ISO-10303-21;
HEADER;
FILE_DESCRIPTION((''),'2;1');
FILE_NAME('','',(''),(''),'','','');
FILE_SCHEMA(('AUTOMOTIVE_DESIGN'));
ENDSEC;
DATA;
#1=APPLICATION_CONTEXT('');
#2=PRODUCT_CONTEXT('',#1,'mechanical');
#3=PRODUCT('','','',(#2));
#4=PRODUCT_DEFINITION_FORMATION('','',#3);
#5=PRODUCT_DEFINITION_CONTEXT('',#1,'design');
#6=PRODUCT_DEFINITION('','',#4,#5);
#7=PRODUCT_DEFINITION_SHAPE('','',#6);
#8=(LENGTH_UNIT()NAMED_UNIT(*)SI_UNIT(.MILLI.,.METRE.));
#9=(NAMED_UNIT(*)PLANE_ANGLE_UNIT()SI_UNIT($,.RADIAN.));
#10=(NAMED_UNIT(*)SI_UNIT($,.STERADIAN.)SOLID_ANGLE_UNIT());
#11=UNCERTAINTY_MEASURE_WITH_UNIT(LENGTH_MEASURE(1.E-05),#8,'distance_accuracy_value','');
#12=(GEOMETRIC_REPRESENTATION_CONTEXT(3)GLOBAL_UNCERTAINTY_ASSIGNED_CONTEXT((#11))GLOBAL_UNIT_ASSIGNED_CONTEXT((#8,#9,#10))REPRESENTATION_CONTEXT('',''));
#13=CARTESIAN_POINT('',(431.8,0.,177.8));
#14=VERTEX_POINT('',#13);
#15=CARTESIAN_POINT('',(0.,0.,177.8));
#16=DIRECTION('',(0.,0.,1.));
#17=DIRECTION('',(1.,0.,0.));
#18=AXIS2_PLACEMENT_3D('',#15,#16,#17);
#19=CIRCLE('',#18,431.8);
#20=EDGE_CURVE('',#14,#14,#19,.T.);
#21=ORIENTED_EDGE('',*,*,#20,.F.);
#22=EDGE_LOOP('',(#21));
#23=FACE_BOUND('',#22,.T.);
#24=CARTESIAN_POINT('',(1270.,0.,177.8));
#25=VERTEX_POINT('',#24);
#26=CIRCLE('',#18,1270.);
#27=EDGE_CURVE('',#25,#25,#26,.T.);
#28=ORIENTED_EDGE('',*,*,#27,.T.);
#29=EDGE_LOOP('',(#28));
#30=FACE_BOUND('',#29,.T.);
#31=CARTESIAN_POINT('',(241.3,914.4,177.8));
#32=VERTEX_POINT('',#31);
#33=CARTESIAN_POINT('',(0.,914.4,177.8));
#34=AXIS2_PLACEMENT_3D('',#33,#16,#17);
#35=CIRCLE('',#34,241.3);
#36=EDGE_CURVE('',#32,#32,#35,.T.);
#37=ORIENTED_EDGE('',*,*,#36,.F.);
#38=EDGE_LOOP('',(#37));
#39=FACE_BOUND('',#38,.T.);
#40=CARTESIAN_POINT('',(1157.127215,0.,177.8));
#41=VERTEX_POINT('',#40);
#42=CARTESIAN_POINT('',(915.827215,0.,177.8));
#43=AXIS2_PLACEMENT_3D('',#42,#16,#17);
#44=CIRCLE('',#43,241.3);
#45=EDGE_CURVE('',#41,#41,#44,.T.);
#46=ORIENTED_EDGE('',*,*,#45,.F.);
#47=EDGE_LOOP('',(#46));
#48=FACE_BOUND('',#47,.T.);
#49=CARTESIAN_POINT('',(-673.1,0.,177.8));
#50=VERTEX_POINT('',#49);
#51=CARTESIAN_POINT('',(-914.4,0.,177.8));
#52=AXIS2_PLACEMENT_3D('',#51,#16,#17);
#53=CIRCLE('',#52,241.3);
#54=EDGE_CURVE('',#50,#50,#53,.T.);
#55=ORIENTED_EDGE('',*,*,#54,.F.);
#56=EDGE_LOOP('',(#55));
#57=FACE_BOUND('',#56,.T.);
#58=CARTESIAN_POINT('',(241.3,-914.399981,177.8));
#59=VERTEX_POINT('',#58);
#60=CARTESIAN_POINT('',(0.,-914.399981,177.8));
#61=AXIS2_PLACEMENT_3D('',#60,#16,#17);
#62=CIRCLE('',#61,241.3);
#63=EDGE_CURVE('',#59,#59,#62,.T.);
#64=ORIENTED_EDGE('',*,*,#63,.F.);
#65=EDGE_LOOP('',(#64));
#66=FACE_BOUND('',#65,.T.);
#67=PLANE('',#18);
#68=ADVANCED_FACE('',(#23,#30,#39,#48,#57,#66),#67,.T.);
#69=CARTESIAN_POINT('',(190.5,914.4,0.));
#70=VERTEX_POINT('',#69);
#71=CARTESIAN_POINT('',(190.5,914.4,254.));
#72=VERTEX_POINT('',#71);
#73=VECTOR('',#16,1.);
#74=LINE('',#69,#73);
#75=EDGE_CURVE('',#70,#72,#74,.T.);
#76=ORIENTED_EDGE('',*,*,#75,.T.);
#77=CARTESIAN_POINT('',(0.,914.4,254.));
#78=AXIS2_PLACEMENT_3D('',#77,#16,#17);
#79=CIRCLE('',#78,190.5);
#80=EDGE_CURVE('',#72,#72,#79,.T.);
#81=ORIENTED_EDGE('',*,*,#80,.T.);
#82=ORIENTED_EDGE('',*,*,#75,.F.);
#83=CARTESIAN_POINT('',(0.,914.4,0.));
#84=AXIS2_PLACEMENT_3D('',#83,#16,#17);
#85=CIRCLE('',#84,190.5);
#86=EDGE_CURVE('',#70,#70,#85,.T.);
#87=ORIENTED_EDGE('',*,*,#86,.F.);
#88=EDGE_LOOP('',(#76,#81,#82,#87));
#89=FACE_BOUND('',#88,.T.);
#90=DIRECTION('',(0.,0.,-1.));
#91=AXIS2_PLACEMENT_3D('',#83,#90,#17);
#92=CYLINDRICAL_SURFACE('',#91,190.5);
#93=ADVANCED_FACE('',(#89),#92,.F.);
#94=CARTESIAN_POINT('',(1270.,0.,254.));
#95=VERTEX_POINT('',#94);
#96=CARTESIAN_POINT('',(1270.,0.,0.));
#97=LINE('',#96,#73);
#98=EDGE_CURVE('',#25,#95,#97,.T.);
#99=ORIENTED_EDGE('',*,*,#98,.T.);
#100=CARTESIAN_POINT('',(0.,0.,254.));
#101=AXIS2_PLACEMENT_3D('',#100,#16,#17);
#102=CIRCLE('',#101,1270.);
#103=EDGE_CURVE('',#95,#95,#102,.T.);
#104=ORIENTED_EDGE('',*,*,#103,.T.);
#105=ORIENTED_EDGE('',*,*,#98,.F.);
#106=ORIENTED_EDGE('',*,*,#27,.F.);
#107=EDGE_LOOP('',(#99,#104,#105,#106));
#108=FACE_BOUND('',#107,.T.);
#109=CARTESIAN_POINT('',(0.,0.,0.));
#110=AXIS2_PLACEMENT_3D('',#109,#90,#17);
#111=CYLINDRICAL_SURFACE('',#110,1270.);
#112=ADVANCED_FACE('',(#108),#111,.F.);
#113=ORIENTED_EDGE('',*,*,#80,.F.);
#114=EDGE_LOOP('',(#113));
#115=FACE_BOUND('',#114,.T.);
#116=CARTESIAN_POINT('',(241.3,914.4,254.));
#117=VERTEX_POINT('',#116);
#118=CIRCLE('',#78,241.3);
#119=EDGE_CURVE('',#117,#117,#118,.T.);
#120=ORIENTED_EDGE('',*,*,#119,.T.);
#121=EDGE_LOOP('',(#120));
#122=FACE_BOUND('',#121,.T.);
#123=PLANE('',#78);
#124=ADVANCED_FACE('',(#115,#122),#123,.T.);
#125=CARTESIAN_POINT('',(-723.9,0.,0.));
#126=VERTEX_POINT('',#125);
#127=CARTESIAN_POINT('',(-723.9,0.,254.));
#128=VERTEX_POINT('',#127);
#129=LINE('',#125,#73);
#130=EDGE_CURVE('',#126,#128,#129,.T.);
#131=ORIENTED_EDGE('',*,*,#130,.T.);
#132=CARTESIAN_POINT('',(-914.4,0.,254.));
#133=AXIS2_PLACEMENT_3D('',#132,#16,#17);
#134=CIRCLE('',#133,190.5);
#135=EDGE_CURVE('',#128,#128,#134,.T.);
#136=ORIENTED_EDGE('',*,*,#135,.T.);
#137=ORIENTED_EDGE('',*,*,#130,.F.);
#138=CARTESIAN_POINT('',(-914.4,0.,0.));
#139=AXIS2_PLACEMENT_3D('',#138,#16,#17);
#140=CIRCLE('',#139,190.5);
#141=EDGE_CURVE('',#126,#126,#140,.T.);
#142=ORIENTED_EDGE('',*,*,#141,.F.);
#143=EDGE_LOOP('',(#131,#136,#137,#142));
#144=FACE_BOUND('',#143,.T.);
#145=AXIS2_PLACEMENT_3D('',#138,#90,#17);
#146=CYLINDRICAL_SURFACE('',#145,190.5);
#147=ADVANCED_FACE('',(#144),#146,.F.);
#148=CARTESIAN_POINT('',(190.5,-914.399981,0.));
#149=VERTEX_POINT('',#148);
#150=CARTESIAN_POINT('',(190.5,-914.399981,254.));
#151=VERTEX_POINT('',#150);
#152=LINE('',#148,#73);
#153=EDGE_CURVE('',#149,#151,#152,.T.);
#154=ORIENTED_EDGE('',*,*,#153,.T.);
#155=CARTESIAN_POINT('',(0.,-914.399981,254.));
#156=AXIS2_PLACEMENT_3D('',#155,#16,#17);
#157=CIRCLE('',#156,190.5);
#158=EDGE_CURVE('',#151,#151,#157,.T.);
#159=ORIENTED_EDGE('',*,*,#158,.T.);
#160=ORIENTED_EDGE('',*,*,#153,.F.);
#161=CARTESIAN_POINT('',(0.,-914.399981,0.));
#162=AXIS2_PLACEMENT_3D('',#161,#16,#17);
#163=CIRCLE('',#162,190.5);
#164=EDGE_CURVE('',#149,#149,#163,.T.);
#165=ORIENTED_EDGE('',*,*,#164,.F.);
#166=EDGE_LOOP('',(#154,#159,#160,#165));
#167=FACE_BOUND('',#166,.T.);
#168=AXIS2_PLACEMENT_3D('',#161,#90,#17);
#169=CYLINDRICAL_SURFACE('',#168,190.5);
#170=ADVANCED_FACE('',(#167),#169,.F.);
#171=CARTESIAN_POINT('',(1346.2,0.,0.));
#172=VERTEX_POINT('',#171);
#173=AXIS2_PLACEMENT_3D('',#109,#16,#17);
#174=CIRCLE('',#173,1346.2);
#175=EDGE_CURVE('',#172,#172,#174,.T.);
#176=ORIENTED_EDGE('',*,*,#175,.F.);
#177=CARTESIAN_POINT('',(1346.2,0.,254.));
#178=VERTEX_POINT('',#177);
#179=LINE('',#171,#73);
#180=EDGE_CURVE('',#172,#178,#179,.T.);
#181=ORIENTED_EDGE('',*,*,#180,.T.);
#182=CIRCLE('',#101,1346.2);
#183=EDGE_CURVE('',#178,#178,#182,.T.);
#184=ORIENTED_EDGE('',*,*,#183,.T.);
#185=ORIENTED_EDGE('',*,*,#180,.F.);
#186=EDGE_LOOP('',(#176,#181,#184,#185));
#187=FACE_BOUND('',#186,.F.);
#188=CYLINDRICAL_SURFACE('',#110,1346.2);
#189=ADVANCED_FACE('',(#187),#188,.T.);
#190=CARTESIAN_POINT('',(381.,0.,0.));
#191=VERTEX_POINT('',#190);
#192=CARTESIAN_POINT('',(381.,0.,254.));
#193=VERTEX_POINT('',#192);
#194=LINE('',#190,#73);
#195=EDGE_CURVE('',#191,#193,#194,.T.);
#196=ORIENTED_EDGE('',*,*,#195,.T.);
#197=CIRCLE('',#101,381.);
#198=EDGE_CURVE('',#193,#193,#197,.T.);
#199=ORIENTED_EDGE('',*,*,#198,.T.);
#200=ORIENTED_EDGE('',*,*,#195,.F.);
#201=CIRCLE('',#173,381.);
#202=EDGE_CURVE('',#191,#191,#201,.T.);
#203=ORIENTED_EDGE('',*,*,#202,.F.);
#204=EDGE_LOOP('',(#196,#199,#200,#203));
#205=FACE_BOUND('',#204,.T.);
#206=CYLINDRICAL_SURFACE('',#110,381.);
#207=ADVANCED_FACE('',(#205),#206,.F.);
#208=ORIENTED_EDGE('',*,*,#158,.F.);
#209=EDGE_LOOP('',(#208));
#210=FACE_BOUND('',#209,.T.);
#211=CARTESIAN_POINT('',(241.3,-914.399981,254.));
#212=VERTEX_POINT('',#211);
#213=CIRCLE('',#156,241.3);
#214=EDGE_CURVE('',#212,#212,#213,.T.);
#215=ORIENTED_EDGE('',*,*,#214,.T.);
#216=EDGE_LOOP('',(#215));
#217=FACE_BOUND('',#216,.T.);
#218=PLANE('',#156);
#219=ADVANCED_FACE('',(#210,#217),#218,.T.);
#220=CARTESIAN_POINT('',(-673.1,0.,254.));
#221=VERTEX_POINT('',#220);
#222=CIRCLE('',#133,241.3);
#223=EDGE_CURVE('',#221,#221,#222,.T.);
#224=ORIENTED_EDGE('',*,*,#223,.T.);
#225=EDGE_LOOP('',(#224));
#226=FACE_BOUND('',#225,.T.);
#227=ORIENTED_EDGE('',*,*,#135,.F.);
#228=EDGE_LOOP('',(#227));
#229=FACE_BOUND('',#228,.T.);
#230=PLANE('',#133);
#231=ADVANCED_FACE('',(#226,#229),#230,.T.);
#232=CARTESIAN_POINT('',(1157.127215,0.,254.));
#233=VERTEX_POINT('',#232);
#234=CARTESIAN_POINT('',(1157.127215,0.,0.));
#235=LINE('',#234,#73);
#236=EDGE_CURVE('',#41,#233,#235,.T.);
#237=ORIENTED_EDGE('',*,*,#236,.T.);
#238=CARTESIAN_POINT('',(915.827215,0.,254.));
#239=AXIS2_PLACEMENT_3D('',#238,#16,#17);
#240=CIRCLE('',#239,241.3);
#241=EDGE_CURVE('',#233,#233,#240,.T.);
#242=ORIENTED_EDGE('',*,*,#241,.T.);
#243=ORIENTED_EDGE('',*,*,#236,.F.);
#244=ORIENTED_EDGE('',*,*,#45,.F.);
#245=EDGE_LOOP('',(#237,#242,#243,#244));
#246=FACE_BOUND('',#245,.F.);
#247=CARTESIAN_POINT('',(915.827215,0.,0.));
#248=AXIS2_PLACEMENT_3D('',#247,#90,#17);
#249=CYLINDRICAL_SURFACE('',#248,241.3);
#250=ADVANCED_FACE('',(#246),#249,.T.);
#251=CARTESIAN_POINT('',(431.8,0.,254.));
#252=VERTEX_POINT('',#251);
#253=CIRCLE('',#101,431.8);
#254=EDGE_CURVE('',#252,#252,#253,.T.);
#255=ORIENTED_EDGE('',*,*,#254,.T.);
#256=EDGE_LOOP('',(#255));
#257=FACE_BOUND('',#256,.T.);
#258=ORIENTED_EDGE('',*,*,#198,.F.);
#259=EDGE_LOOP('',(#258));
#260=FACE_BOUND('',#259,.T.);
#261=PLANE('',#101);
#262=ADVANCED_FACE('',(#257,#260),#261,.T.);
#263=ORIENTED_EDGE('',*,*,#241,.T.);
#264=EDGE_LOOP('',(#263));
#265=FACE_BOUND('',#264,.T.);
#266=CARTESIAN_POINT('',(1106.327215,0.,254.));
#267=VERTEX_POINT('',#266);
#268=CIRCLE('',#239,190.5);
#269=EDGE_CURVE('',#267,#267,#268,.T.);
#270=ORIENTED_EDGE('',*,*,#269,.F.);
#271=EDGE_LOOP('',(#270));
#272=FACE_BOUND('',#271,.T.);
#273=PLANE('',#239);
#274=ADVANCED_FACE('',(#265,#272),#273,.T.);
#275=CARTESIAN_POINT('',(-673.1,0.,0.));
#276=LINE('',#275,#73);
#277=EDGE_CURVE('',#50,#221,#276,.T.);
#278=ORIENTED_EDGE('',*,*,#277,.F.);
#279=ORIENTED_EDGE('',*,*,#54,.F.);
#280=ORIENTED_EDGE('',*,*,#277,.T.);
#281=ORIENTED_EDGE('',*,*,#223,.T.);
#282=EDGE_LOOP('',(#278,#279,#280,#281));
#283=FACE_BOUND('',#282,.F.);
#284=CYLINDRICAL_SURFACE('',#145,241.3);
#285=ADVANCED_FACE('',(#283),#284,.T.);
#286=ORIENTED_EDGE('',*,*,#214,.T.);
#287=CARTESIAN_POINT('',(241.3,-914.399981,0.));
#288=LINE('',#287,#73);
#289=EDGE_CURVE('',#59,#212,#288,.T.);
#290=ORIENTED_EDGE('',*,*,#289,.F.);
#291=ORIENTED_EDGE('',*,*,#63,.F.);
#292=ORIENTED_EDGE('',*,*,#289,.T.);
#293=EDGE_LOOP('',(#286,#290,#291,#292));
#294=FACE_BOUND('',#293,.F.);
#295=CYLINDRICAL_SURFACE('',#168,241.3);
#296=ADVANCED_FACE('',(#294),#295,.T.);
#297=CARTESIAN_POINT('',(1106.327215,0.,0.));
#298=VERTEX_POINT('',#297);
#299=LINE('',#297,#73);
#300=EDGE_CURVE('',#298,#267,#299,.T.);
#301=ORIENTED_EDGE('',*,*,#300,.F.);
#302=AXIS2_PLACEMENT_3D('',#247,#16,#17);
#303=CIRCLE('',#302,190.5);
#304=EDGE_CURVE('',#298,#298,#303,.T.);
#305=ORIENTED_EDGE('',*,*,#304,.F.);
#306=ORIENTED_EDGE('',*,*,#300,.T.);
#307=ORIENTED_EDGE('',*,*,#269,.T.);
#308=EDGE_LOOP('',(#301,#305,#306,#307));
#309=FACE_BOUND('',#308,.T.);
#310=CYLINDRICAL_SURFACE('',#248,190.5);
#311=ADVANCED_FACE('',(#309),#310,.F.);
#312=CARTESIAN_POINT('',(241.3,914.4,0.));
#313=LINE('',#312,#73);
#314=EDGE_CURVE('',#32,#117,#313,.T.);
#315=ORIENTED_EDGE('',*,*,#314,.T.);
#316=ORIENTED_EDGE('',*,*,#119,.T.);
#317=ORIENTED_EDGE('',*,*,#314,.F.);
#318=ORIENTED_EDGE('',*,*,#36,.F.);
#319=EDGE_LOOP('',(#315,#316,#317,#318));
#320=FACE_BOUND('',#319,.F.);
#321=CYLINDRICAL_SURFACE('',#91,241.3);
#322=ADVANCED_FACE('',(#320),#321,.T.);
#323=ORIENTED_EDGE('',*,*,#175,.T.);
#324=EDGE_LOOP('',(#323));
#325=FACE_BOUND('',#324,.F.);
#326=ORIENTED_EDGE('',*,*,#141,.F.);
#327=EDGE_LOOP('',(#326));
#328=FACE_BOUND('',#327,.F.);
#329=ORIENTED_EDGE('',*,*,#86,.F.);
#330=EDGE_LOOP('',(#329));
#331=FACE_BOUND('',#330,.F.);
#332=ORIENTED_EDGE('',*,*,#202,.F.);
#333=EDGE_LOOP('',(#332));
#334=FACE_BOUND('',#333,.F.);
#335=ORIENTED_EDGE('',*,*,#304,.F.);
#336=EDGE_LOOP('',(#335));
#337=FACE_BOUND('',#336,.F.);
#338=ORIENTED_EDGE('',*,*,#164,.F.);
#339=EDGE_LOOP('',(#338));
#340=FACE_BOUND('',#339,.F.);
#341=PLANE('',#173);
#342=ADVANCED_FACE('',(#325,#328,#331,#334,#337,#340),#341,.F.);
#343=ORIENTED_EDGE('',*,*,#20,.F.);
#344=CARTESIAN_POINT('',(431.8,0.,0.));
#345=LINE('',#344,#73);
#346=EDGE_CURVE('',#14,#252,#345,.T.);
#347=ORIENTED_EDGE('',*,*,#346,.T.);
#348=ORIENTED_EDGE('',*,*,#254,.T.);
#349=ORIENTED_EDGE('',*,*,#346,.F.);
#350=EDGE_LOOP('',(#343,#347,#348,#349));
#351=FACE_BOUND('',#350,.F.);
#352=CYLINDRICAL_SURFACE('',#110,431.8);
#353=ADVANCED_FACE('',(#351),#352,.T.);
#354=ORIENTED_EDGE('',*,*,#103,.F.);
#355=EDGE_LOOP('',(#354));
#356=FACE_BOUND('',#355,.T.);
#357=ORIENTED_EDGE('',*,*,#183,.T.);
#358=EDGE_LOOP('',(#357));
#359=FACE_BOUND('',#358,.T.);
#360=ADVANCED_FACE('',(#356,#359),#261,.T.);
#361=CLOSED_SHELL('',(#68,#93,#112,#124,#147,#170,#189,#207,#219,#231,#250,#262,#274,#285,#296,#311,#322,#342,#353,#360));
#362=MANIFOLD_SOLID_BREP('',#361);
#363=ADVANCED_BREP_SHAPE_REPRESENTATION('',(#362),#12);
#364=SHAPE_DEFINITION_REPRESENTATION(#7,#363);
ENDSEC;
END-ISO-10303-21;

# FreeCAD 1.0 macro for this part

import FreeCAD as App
import Part
import Sketcher
Q = App.Units.Quantity

doc = App.newDocument("Part")
body = doc.addObject("PartDesign::Body", "Body")

# Sketch on XY plane
sketch1 = body.newObject("Sketcher::SketchObject", "Sketch")
sketch1.AttachmentSupport = (doc.getObject("XY_Plane"), [""])
sketch1.MapMode = "FlatFace"
sketch1.addGeometry(Part.Circle(App.Vector(0, 0, 0), App.Vector(0, 0, 1), 1270), False)
sketch1.addGeometry(Part.Circle(App.Vector(0, -914, 0), App.Vector(0, 0, 1), 241), False)
sketch1.addGeometry(Part.Circle(App.Vector(-914, 0, 0), App.Vector(0, 0, 1), 241), False)
sketch1.addGeometry(Part.Circle(App.Vector(0, 0, 0), App.Vector(0, 0, 1), 432), False)
sketch1.addGeometry(Part.Circle(App.Vector(916, 0, 0), App.Vector(0, 0, 1), 241), False)
sketch1.addGeometry(Part.Circle(App.Vector(0, 914, 0), App.Vector(0, 0, 1), 241), False)
sketch1.addConstraint(Sketcher.Constraint("Coincident", 0, 3, -1, 1))
sketch1.addConstraint(Sketcher.Constraint("Coincident", 3, 3, -1, 1))
sketch1.addConstraint(Sketcher.Constraint("Equal", 1, 2))
sketch1.addConstraint(Sketcher.Constraint("Equal", 2, 4))
sketch1.addConstraint(Sketcher.Constraint("Equal", 4, 5))
sketch1.addConstraint(Sketcher.Constraint("PointOnObject", 1, 3, -2))
sketch1.addConstraint(Sketcher.Constraint("PointOnObject", 2, 3, -1))
sketch1.addConstraint(Sketcher.Constraint("PointOnObject", 4, 3, -1))
sketch1.addConstraint(Sketcher.Constraint("PointOnObject", 5, 3, -2))
sketch1.addConstraint(Sketcher.Constraint("Diameter", 0, Q("100 in")))
sketch1.addConstraint(Sketcher.Constraint("Diameter", 1, Q("19 in")))
sketch1.addConstraint(Sketcher.Constraint("Diameter", 3, Q("34 in")))
sketch1.addConstraint(Sketcher.Constraint("DistanceX", 2, 3, -1, 1, Q("36 in")))
sketch1.addConstraint(Sketcher.Constraint("DistanceY", -1, 1, 5, 3, Q("36 in")))
sketch1.addConstraint(Sketcher.Constraint("DistanceY", 1, 3, -1, 1, Q("914.399981 mm")))
sketch1.addConstraint(Sketcher.Constraint("DistanceX", -1, 1, 4, 3, Q("915.827215 mm")))
pad1 = body.newObject("PartDesign::Pad", "Pad")
pad1.Profile = sketch1
pad1.Length = Q("7 in")

# Sketch on XY plane
sketch2 = body.newObject("Sketcher::SketchObject", "Sketch001")
sketch2.AttachmentSupport = (doc.getObject("XY_Plane"), [""])
sketch2.MapMode = "FlatFace"
sketch2.addGeometry(Part.Circle(App.Vector(0, 914, 0), App.Vector(0, 0, 1), 241), False)
sketch2.addGeometry(Part.Circle(App.Vector(0, 914, 0), App.Vector(0, 0, 1), 190), False)
sketch2.addGeometry(Part.Circle(App.Vector(916, 0, 0), App.Vector(0, 0, 1), 241), False)
sketch2.addGeometry(Part.Circle(App.Vector(916, 0, 0), App.Vector(0, 0, 1), 190), False)
sketch2.addGeometry(Part.Circle(App.Vector(0, -914, 0), App.Vector(0, 0, 1), 241), False)
sketch2.addGeometry(Part.Circle(App.Vector(0, -914, 0), App.Vector(0, 0, 1), 190), False)
sketch2.addGeometry(Part.Circle(App.Vector(-914, 0, 0), App.Vector(0, 0, 1), 241), False)
sketch2.addGeometry(Part.Circle(App.Vector(-914, 0, 0), App.Vector(0, 0, 1), 190), False)
sketch2.addConstraint(Sketcher.Constraint("Coincident", 1, 3, 0, 3))
sketch2.addConstraint(Sketcher.Constraint("Coincident", 3, 3, 2, 3))
sketch2.addConstraint(Sketcher.Constraint("Coincident", 5, 3, 4, 3))
sketch2.addConstraint(Sketcher.Constraint("Coincident", 7, 3, 6, 3))
sketch2.addConstraint(Sketcher.Constraint("Equal", 0, 2))
sketch2.addConstraint(Sketcher.Constraint("Equal", 1, 3))
sketch2.addConstraint(Sketcher.Constraint("Equal", 2, 4))
sketch2.addConstraint(Sketcher.Constraint("Equal", 3, 5))
sketch2.addConstraint(Sketcher.Constraint("Equal", 4, 6))
sketch2.addConstraint(Sketcher.Constraint("Equal", 5, 7))
sketch2.addConstraint(Sketcher.Constraint("PointOnObject", 0, 3, -2))
sketch2.addConstraint(Sketcher.Constraint("PointOnObject", 2, 3, -1))
sketch2.addConstraint(Sketcher.Constraint("PointOnObject", 4, 3, -2))
sketch2.addConstraint(Sketcher.Constraint("PointOnObject", 6, 3, -1))
sketch2.addConstraint(Sketcher.Constraint("Diameter", 0, Q("19 in")))
sketch2.addConstraint(Sketcher.Constraint("Diameter", 1, Q("15 in")))
sketch2.addConstraint(Sketcher.Constraint("DistanceY", -1, 1, 0, 3, Q("36 in")))
sketch2.addConstraint(Sketcher.Constraint("DistanceX", 6, 3, -1, 1, Q("36 in")))
sketch2.addConstraint(Sketcher.Constraint("DistanceY", 4, 3, -1, 1, Q("914.399981 mm")))
sketch2.addConstraint(Sketcher.Constraint("DistanceX", -1, 1, 2, 3, Q("915.827215 mm")))
pad2 = body.newObject("PartDesign::Pad", "Pad001")
pad2.Profile = sketch2
pad2.Length = Q("10 in")

# Sketch on XY plane
sketch3 = body.newObject("Sketcher::SketchObject", "Sketch002")
sketch3.AttachmentSupport = (doc.getObject("XY_Plane"), [""])
sketch3.MapMode = "FlatFace"
sketch3.addGeometry(Part.Circle(App.Vector(0, 0, 0), App.Vector(0, 0, 1), 432), False)
sketch3.addGeometry(Part.Circle(App.Vector(0, 0, 0), App.Vector(0, 0, 1), 381), False)
sketch3.addConstraint(Sketcher.Constraint("Coincident", 0, 3, -1, 1))
sketch3.addConstraint(Sketcher.Constraint("Coincident", 1, 3, -1, 1))
sketch3.addConstraint(Sketcher.Constraint("Diameter", 0, Q("34 in")))
sketch3.addConstraint(Sketcher.Constraint("Diameter", 1, Q("30 in")))
pad3 = body.newObject("PartDesign::Pad", "Pad002")
pad3.Profile = sketch3
pad3.Length = Q("10 in")

# Sketch on XY plane
sketch4 = body.newObject("Sketcher::SketchObject", "Sketch003")
sketch4.AttachmentSupport = (doc.getObject("XY_Plane"), [""])
sketch4.MapMode = "FlatFace"
sketch4.addGeometry(Part.Circle(App.Vector(0, 0, 0), App.Vector(0, 0, 1), 1346), False)
sketch4.addGeometry(Part.Circle(App.Vector(0, 0, 0), App.Vector(0, 0, 1), 1270), False)
sketch4.addConstraint(Sketcher.Constraint("Coincident", 0, 3, -1, 1))
sketch4.addConstraint(Sketcher.Constraint("Coincident", 1, 3, -1, 1))
sketch4.addConstraint(Sketcher.Constraint("Diameter", 0, Q("106 in")))
sketch4.addConstraint(Sketcher.Constraint("Diameter", 1, Q("100 in")))
pad4 = body.newObject("PartDesign::Pad", "Pad003")
pad4.Profile = sketch4
pad4.Length = Q("10 in")

doc.recompute()
